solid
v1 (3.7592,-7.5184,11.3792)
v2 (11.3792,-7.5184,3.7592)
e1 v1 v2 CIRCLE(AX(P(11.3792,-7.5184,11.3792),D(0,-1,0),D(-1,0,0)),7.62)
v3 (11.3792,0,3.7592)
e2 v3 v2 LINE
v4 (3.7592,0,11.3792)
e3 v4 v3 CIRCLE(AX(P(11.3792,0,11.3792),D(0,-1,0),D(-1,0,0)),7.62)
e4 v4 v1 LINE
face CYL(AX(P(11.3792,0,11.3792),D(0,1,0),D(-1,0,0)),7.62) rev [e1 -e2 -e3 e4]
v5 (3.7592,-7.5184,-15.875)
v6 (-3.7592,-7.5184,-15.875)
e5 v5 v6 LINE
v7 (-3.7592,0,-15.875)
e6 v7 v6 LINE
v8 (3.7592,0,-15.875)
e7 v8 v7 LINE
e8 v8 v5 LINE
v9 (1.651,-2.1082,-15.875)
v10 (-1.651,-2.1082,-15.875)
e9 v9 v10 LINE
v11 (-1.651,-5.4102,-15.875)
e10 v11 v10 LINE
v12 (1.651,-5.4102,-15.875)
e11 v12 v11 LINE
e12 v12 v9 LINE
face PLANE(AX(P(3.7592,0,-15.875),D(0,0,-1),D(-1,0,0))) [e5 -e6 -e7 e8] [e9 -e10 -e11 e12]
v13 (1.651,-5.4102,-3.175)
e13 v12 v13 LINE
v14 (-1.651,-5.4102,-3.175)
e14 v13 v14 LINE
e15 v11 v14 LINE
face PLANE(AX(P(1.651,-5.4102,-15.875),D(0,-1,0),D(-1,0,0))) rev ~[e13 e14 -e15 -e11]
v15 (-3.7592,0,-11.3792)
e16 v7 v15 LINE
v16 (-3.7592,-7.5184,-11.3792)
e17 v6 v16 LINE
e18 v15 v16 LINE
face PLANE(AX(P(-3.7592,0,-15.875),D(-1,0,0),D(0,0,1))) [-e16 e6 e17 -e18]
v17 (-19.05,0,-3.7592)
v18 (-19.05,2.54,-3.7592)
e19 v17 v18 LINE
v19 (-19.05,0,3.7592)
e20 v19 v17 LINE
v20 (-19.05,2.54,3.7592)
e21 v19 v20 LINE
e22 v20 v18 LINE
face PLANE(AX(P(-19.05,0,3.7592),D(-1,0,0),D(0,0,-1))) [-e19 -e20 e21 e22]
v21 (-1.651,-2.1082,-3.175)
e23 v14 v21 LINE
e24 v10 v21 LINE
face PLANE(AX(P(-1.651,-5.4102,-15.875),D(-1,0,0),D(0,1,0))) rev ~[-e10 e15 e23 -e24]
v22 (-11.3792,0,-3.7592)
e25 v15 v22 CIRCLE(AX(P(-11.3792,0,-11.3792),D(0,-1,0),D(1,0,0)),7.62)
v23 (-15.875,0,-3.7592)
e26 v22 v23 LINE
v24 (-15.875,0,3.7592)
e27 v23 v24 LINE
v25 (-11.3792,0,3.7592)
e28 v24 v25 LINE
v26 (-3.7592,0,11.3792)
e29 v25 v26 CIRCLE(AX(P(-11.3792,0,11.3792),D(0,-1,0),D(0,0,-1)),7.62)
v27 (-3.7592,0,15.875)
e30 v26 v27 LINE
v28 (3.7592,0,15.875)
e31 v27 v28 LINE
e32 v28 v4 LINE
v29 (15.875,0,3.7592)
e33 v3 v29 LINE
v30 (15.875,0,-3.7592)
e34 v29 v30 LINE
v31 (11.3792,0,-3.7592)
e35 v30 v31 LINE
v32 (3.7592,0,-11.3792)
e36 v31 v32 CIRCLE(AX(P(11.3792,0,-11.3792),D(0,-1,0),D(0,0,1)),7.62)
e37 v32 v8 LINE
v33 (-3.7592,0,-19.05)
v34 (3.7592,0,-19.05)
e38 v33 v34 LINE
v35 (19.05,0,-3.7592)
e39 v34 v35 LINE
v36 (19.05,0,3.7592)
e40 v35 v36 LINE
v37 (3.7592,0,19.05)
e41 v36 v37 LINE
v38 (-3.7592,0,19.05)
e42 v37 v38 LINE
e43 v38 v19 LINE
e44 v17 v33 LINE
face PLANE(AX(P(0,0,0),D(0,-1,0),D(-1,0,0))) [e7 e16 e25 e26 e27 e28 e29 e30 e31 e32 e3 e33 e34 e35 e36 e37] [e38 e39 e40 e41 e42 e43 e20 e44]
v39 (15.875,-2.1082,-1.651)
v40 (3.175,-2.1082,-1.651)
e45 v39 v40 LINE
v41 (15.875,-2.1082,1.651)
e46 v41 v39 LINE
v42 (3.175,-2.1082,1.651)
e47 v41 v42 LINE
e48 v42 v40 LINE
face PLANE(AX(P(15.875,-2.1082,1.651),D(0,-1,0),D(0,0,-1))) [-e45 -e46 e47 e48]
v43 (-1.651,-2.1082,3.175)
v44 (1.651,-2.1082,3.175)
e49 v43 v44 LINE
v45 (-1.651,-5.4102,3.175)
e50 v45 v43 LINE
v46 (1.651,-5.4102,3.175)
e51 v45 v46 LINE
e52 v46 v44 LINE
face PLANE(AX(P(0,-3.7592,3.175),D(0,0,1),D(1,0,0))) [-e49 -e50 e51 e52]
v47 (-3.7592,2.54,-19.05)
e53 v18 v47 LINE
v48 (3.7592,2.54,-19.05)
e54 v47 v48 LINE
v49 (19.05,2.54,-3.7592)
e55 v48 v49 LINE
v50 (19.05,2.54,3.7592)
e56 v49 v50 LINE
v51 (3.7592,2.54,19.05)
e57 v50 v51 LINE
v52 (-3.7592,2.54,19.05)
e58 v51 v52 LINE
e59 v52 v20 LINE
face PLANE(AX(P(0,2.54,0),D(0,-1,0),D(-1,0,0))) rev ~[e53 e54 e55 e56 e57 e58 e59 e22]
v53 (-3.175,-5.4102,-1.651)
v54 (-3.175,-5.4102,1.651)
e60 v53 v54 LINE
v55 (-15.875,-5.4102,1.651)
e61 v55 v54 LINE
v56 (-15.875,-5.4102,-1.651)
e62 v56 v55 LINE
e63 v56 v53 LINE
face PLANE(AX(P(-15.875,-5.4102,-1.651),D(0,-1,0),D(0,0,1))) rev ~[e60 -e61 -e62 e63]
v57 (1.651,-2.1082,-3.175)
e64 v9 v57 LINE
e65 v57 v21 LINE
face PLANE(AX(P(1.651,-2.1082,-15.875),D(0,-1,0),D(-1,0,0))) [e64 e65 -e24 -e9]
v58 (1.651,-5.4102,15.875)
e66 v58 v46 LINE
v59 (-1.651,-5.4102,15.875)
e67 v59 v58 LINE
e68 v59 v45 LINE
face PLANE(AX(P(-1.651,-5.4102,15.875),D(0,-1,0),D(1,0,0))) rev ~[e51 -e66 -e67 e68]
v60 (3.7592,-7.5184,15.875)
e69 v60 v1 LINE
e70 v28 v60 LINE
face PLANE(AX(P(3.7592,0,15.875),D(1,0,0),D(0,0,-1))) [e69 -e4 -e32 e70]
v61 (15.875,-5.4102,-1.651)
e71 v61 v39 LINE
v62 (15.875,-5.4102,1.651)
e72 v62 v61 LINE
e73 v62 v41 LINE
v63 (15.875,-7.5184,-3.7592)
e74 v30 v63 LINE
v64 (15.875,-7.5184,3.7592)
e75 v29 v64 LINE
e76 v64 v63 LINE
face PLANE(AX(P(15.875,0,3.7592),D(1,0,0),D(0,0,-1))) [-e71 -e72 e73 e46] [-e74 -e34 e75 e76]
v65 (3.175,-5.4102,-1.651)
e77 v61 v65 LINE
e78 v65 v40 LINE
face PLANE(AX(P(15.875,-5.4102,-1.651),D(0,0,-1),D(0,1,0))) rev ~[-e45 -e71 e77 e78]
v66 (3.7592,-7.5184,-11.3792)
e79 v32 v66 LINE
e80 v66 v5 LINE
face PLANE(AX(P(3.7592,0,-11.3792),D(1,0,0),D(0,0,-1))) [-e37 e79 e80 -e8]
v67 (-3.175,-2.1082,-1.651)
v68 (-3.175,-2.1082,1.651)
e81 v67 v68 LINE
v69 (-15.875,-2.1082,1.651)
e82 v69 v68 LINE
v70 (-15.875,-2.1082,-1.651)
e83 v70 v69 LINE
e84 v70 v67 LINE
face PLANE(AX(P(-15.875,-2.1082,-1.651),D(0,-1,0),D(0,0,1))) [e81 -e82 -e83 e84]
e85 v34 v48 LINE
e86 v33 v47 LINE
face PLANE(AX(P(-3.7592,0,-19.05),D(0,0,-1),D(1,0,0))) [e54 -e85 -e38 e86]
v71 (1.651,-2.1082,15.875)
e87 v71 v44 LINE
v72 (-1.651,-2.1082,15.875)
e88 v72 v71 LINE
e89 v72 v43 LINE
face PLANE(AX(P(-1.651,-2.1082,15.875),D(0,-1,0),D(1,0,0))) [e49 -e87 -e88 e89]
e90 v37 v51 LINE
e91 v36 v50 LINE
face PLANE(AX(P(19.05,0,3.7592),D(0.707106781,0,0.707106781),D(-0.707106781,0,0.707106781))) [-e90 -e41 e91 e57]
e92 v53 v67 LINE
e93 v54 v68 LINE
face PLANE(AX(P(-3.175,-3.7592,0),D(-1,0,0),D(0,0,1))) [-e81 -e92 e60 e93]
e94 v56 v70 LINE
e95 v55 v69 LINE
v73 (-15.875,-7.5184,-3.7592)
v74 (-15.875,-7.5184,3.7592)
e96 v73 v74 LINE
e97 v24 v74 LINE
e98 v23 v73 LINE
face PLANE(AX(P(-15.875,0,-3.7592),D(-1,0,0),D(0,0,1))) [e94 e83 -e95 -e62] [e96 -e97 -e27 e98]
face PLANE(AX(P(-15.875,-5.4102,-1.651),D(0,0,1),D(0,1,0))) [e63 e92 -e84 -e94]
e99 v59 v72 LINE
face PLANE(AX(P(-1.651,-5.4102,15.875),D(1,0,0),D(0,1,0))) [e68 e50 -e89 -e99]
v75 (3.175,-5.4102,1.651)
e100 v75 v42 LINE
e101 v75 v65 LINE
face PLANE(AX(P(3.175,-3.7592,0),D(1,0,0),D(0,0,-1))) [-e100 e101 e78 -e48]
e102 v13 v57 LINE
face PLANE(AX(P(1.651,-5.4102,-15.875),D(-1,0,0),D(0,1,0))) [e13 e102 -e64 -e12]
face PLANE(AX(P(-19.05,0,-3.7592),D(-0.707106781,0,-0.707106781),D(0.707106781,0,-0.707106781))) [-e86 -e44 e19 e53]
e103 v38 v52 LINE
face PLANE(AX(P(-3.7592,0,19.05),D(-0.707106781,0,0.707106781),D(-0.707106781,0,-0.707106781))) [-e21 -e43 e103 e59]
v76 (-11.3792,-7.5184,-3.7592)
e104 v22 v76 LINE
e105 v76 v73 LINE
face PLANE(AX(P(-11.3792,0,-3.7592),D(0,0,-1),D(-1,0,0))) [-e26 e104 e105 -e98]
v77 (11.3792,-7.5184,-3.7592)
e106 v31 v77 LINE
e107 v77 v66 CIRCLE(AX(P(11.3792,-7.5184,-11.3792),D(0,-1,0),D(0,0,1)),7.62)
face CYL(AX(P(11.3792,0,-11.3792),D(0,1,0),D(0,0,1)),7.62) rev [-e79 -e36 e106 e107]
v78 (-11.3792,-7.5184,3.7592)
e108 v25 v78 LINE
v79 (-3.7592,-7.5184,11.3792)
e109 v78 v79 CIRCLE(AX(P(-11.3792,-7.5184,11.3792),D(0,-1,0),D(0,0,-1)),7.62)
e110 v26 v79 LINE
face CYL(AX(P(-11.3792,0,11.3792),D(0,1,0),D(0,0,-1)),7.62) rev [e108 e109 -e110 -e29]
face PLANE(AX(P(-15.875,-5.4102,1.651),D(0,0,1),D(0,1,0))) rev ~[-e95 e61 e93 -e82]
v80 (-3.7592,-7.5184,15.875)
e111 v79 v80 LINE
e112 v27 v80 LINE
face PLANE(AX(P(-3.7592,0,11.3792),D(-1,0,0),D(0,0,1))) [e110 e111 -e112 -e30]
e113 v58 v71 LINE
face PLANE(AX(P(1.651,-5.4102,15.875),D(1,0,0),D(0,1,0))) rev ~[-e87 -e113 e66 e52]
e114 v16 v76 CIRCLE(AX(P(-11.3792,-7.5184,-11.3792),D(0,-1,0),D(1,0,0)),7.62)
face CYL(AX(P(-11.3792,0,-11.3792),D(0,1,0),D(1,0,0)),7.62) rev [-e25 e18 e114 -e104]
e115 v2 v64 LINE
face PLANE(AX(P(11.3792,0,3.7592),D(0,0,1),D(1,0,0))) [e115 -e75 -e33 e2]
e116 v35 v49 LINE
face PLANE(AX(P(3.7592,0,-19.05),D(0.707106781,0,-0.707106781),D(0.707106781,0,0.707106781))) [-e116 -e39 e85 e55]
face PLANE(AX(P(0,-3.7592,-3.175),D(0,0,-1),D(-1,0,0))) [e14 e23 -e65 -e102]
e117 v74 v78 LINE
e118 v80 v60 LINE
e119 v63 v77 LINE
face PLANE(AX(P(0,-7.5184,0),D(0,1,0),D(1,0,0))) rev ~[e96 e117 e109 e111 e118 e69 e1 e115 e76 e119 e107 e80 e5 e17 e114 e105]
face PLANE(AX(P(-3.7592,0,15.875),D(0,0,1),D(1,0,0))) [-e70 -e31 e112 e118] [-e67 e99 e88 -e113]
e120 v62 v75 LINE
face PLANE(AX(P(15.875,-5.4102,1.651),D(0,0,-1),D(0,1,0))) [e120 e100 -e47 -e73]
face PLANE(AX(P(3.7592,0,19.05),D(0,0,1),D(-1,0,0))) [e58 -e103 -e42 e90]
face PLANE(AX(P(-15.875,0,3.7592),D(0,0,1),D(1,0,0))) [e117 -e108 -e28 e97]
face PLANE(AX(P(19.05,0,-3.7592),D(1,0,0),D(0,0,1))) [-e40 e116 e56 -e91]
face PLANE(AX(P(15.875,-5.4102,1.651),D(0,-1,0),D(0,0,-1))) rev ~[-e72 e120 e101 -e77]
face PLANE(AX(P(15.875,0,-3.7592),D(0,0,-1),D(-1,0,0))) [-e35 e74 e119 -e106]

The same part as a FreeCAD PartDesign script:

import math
import FreeCAD as App
import Part
import Sketcher
Q = App.Units.Quantity

doc = App.newDocument("Part")
params = doc.addObject("Spreadsheet::Sheet", "Params")
for row, (alias, value) in enumerate([
    ("sketch1_radius", "0.3 in"),
    ("sketch1_width", "0.296 in"),
    ("sketch1_width2", "0.177 in"),
    ("pad1_length", "0.296 in"),
    ("sketch2_width", "0.13 in"),
    ("pocket1_length", "0.5 in"),
    ("sketch3_width", "0.296 in"),
    ("pad2_length", "0.1 in"),
], start=1):
    params.set(f"A{row}", alias)
    params.set(f"B{row}", "=" + value)
    params.setAlias(f"B{row}", alias)

body = doc.addObject("PartDesign::Body", "Body")

# Sketch on XZ plane
sketch1 = body.newObject("Sketcher::SketchObject", "Sketch")
sketch1.AttachmentSupport = (doc.getObject("XZ_Plane"), [""])
sketch1.MapMode = "FlatFace"
sketch1.addGeometry(Part.LineSegment(App.Vector(3.8, -11.4, 0), App.Vector(3.8, -15.9, 0)), False)
sketch1.addGeometry(Part.LineSegment(App.Vector(3.8, -15.9, 0), App.Vector(-3.8, -15.9, 0)), False)
sketch1.addGeometry(Part.LineSegment(App.Vector(-3.8, -15.9, 0), App.Vector(-3.8, -11.4, 0)), False)
sketch1.addGeometry(Part.ArcOfCircle(Part.Circle(App.Vector(-11.4, -11.4, 0), App.Vector(0, 0, 1), 7.6), math.radians(0), math.radians(90)), False)
sketch1.addGeometry(Part.LineSegment(App.Vector(-11.4, -3.8, 0), App.Vector(-15.9, -3.8, 0)), False)
sketch1.addGeometry(Part.LineSegment(App.Vector(-15.9, -3.8, 0), App.Vector(-15.9, 3.8, 0)), False)
sketch1.addGeometry(Part.LineSegment(App.Vector(-15.9, 3.8, 0), App.Vector(-11.4, 3.8, 0)), False)
sketch1.addGeometry(Part.ArcOfCircle(Part.Circle(App.Vector(-11.4, 11.4, 0), App.Vector(0, 0, 1), 7.6), math.radians(-90), math.radians(0)), False)
sketch1.addGeometry(Part.LineSegment(App.Vector(-3.8, 11.4, 0), App.Vector(-3.8, 15.9, 0)), False)
sketch1.addGeometry(Part.LineSegment(App.Vector(-3.8, 15.9, 0), App.Vector(3.8, 15.9, 0)), False)
sketch1.addGeometry(Part.LineSegment(App.Vector(3.8, 15.9, 0), App.Vector(3.8, 11.4, 0)), False)
sketch1.addGeometry(Part.ArcOfCircle(Part.Circle(App.Vector(11.4, 11.4, 0), App.Vector(0, 0, 1), 7.6), math.radians(180), math.radians(270)), False)
sketch1.addGeometry(Part.LineSegment(App.Vector(11.4, 3.8, 0), App.Vector(15.9, 3.8, 0)), False)
sketch1.addGeometry(Part.LineSegment(App.Vector(15.9, 3.8, 0), App.Vector(15.9, -3.8, 0)), False)
sketch1.addGeometry(Part.LineSegment(App.Vector(15.9, -3.8, 0), App.Vector(11.4, -3.8, 0)), False)
sketch1.addGeometry(Part.ArcOfCircle(Part.Circle(App.Vector(11.4, -11.4, 0), App.Vector(0, 0, 1), 7.6), math.radians(90), math.radians(180)), False)
sketch1.addConstraint(Sketcher.Constraint("Coincident", 0, 2, 1, 1))
sketch1.addConstraint(Sketcher.Constraint("Coincident", 1, 2, 2, 1))
sketch1.addConstraint(Sketcher.Constraint("Tangent", 2, 2, 3, 1))
sketch1.addConstraint(Sketcher.Constraint("Tangent", 3, 2, 4, 1))
sketch1.addConstraint(Sketcher.Constraint("Coincident", 4, 2, 5, 1))
sketch1.addConstraint(Sketcher.Constraint("Coincident", 5, 2, 6, 1))
sketch1.addConstraint(Sketcher.Constraint("Tangent", 6, 2, 7, 1))
sketch1.addConstraint(Sketcher.Constraint("Tangent", 7, 2, 8, 1))
sketch1.addConstraint(Sketcher.Constraint("Coincident", 8, 2, 9, 1))
sketch1.addConstraint(Sketcher.Constraint("Coincident", 9, 2, 10, 1))
sketch1.addConstraint(Sketcher.Constraint("Tangent", 10, 2, 11, 1))
sketch1.addConstraint(Sketcher.Constraint("Tangent", 11, 2, 12, 1))
sketch1.addConstraint(Sketcher.Constraint("Coincident", 12, 2, 13, 1))
sketch1.addConstraint(Sketcher.Constraint("Coincident", 13, 2, 14, 1))
sketch1.addConstraint(Sketcher.Constraint("Tangent", 14, 2, 15, 1))
sketch1.addConstraint(Sketcher.Constraint("Tangent", 15, 2, 0, 1))
sketch1.addConstraint(Sketcher.Constraint("Vertical", 0))
sketch1.addConstraint(Sketcher.Constraint("Horizontal", 1))
sketch1.addConstraint(Sketcher.Constraint("Vertical", 2))
sketch1.addConstraint(Sketcher.Constraint("Horizontal", 4))
sketch1.addConstraint(Sketcher.Constraint("Vertical", 5))
sketch1.addConstraint(Sketcher.Constraint("Horizontal", 6))
sketch1.addConstraint(Sketcher.Constraint("Vertical", 8))
sketch1.addConstraint(Sketcher.Constraint("Horizontal", 9))
sketch1.addConstraint(Sketcher.Constraint("Vertical", 10))
sketch1.addConstraint(Sketcher.Constraint("Horizontal", 12))
sketch1.addConstraint(Sketcher.Constraint("Vertical", 13))
sketch1.addConstraint(Sketcher.Constraint("Horizontal", 14))
sketch1.addConstraint(Sketcher.Constraint("Equal", 3, 7))
sketch1.addConstraint(Sketcher.Constraint("Equal", 7, 11))
sketch1.addConstraint(Sketcher.Constraint("Equal", 11, 15))
sketch1.addConstraint(Sketcher.Constraint("Symmetric", 3, 3, 11, 3, -1, 1))
sketch1.addConstraint(Sketcher.Constraint("Symmetric", 7, 3, 15, 3, -1, 1))
sketch1.addConstraint(Sketcher.Constraint("Symmetric", 7, 3, 11, 3, -2))
sketch1.addConstraint(Sketcher.Constraint("Equal", 6, 12))
sketch1.addConstraint(Sketcher.Constraint("Equal", 14, 0))
sketch1.addConstraint(Sketcher.Constraint("Equal", 9, 5))
sketch1.addConstraint(Sketcher.Constraint("Equal", 2, 8))
sketch1.addConstraint(Sketcher.Constraint("Radius", 3, Q("0.3 in")))
sketch1.addConstraint(Sketcher.Constraint("DistanceX", 1, 2, 1, 1, Q("0.296 in")))
sketch1.addConstraint(Sketcher.Constraint("DistanceX", 4, 2, 4, 1, Q("0.177 in")))
sketch1.setExpression("Constraints[38]", "Params.sketch1_radius")
sketch1.setExpression("Constraints[39]", "Params.sketch1_width")
sketch1.setExpression("Constraints[40]", "Params.sketch1_width2")
pad1 = body.newObject("PartDesign::Pad", "Pad")
pad1.Profile = sketch1
pad1.setExpression("Length", "Params.pad1_length")

# Sketch on XY plane
sketch2 = body.newObject("Sketcher::SketchObject", "Sketch001")
sketch2.AttachmentSupport = (doc.getObject("XY_Plane"), [""])
sketch2.MapMode = "FlatFace"
sketch2.AttachmentOffset = App.Placement(App.Vector(0, 0, 0.625 * 25.4), App.Rotation())
sketch2.addGeometry(Part.LineSegment(App.Vector(-1.7, -2.1, 0), App.Vector(-1.7, -5.4, 0)), False)
sketch2.addGeometry(Part.LineSegment(App.Vector(-1.7, -5.4, 0), App.Vector(1.7, -5.4, 0)), False)
sketch2.addGeometry(Part.LineSegment(App.Vector(1.7, -5.4, 0), App.Vector(1.7, -2.1, 0)), False)
sketch2.addGeometry(Part.LineSegment(App.Vector(1.7, -2.1, 0), App.Vector(-1.7, -2.1, 0)), False)
sketch2.addConstraint(Sketcher.Constraint("Coincident", 0, 2, 1, 1))
sketch2.addConstraint(Sketcher.Constraint("Coincident", 1, 2, 2, 1))
sketch2.addConstraint(Sketcher.Constraint("Coincident", 2, 2, 3, 1))
sketch2.addConstraint(Sketcher.Constraint("Coincident", 3, 2, 0, 1))
sketch2.addConstraint(Sketcher.Constraint("Vertical", 0))
sketch2.addConstraint(Sketcher.Constraint("Horizontal", 1))
sketch2.addConstraint(Sketcher.Constraint("Vertical", 2))
sketch2.addConstraint(Sketcher.Constraint("Horizontal", 3))
sketch2.addConstraint(Sketcher.Constraint("Equal", 3, 0))
sketch2.addConstraint(Sketcher.Constraint("DistanceX", 1, 1, 1, 2, Q("0.13 in")))
sketch2.addConstraint(Sketcher.Constraint("DistanceX", 0, 2, -1, 1, Q("0.065 in")))
sketch2.addConstraint(Sketcher.Constraint("DistanceY", 0, 2, -1, 1, Q("0.213 in")))
sketch2.setExpression("Constraints[9]", "Params.sketch2_width")
pocket1 = body.newObject("PartDesign::Pocket", "Pocket")
pocket1.Profile = sketch2
pocket1.setExpression("Length", "Params.pocket1_length")
doc.recompute()

polarpattern = body.newObject("PartDesign::PolarPattern", "PolarPattern")
polarpattern.Originals = [pocket1]
polarpattern.Axis = (doc.getObject("Y_Axis"), [""])
polarpattern.Angle = 360
polarpattern.Occurrences = 4
body.Tip = polarpattern

# Sketch on XZ plane
sketch3 = body.newObject("Sketcher::SketchObject", "Sketch002")
sketch3.AttachmentSupport = (doc.getObject("XZ_Plane"), [""])
sketch3.MapMode = "FlatFace"
sketch3.addGeometry(Part.LineSegment(App.Vector(19, -4, 0), App.Vector(4, -19, 0)), False)
sketch3.addGeometry(Part.LineSegment(App.Vector(4, -19, 0), App.Vector(-4, -19, 0)), False)
sketch3.addGeometry(Part.LineSegment(App.Vector(-4, -19, 0), App.Vector(-19, -4, 0)), False)
sketch3.addGeometry(Part.LineSegment(App.Vector(-19, -4, 0), App.Vector(-19, 4, 0)), False)
sketch3.addGeometry(Part.LineSegment(App.Vector(-19, 4, 0), App.Vector(-4, 19, 0)), False)
sketch3.addGeometry(Part.LineSegment(App.Vector(-4, 19, 0), App.Vector(4, 19, 0)), False)
sketch3.addGeometry(Part.LineSegment(App.Vector(4, 19, 0), App.Vector(19, 4, 0)), False)
sketch3.addGeometry(Part.LineSegment(App.Vector(19, 4, 0), App.Vector(19, -4, 0)), False)
sketch3.addConstraint(Sketcher.Constraint("Coincident", 0, 2, 1, 1))
sketch3.addConstraint(Sketcher.Constraint("Coincident", 1, 2, 2, 1))
sketch3.addConstraint(Sketcher.Constraint("Coincident", 2, 2, 3, 1))
sketch3.addConstraint(Sketcher.Constraint("Coincident", 3, 2, 4, 1))
sketch3.addConstraint(Sketcher.Constraint("Coincident", 4, 2, 5, 1))
sketch3.addConstraint(Sketcher.Constraint("Coincident", 5, 2, 6, 1))
sketch3.addConstraint(Sketcher.Constraint("Coincident", 6, 2, 7, 1))
sketch3.addConstraint(Sketcher.Constraint("Coincident", 7, 2, 0, 1))
sketch3.addConstraint(Sketcher.Constraint("Horizontal", 1))
sketch3.addConstraint(Sketcher.Constraint("Vertical", 3))
sketch3.addConstraint(Sketcher.Constraint("Horizontal", 5))
sketch3.addConstraint(Sketcher.Constraint("Vertical", 7))
sketch3.addConstraint(Sketcher.Constraint("Symmetric", 0, 2, 4, 2, -1, 1))
sketch3.addConstraint(Sketcher.Constraint("Symmetric", 2, 2, 6, 2, -1, 1))
sketch3.addConstraint(Sketcher.Constraint("Perpendicular", 0, 2))
sketch3.addConstraint(Sketcher.Constraint("Perpendicular", 2, 4))
sketch3.addConstraint(Sketcher.Constraint("Perpendicular", 4, 6))
sketch3.addConstraint(Sketcher.Constraint("Horizontal", 3, 2, 6, 2))
sketch3.addConstraint(Sketcher.Constraint("Vertical", 1, 2, 4, 2))
sketch3.addConstraint(Sketcher.Constraint("Equal", 5, 3))
sketch3.addConstraint(Sketcher.Constraint("DistanceY", 1, 2, 4, 2, Q("1.5 in")))
sketch3.addConstraint(Sketcher.Constraint("DistanceX", 1, 2, 1, 1, Q("0.296 in")))
sketch3.setExpression("Constraints[21]", "Params.sketch3_width")
pad2 = body.newObject("PartDesign::Pad", "Pad001")
pad2.Profile = sketch3
pad2.setExpression("Length", "Params.pad2_length")
pad2.Reversed = True

doc.recompute()
